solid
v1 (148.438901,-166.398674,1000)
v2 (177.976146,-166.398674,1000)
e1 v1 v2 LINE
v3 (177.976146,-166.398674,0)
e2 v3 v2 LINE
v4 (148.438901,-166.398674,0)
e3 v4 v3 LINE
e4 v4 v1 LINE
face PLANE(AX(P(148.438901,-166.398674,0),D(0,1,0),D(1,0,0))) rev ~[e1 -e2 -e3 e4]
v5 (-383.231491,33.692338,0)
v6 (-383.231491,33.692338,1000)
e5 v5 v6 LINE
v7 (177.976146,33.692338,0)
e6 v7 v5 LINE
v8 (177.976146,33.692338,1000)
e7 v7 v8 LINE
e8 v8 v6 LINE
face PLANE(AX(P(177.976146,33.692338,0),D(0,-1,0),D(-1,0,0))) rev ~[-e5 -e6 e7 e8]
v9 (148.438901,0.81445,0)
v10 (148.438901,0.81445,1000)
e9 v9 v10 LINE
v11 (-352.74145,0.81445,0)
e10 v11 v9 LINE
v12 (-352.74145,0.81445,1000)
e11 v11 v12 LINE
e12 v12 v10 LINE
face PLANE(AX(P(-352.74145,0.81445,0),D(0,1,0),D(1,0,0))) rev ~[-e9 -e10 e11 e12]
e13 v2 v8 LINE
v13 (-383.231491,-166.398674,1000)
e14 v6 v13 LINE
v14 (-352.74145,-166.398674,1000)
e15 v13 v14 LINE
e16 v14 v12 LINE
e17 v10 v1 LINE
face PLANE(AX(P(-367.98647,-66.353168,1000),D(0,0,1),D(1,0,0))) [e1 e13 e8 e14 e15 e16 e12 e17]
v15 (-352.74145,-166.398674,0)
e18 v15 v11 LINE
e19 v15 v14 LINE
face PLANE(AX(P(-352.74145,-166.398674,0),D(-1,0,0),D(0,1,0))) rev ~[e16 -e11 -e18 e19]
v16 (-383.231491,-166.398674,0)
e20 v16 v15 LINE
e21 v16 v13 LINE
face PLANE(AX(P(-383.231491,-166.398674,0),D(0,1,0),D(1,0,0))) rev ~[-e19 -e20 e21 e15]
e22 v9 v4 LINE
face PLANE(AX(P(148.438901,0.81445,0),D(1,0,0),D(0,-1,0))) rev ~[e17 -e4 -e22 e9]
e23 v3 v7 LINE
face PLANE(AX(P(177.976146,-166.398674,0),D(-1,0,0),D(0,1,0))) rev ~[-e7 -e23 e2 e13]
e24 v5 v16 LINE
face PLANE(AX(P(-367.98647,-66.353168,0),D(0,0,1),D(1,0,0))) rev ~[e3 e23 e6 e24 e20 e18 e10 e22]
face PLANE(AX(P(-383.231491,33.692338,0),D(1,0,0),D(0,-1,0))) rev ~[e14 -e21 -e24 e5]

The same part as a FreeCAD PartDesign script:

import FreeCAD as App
import Part
import Sketcher
from FreeCAD import Vector
Q = App.Units.Quantity

doc = App.newDocument("Part")
params = doc.addObject("Spreadsheet::Sheet", "Params")
for row, (alias, value) in enumerate([
    ("pad1_length", "1000 mm"),
], start=1):
    params.set(f"A{row}", alias)
    params.set(f"B{row}", "=" + value)
    params.setAlias(f"B{row}", alias)

body = doc.addObject("PartDesign::Body", "Body")

# Sketch on XY plane
sketch1 = doc.addObject("Sketcher::SketchObject", "Sketch")
body.addObject(sketch1)
sketch1.AttachmentSupport = (doc.XY_Plane, [""])
sketch1.MapMode = "FlatFace"
sketch1.addGeometry([
    Part.LineSegment(Vector(-383, 34, 0), Vector(-383, -166, 0)),  # 0
    Part.LineSegment(Vector(-383, -166, 0), Vector(-353, -166, 0)),  # 1
    Part.LineSegment(Vector(-353, -166, 0), Vector(-353, 1, 0)),  # 2
    Part.LineSegment(Vector(-353, 1, 0), Vector(148, 1, 0)),  # 3
    Part.LineSegment(Vector(148, 1, 0), Vector(148, -166, 0)),  # 4
    Part.LineSegment(Vector(148, -166, 0), Vector(178, -166, 0)),  # 5
    Part.LineSegment(Vector(178, -166, 0), Vector(178, 34, 0)),  # 6
    Part.LineSegment(Vector(178, 34, 0), Vector(-383, 34, 0)),  # 7
], False)
sketch1.addConstraint([
    Sketcher.Constraint("Coincident", 0, 2, 1, 1),
    Sketcher.Constraint("Coincident", 1, 2, 2, 1),
    Sketcher.Constraint("Coincident", 2, 2, 3, 1),
    Sketcher.Constraint("Coincident", 3, 2, 4, 1),
    Sketcher.Constraint("Coincident", 4, 2, 5, 1),
    Sketcher.Constraint("Coincident", 5, 2, 6, 1),
    Sketcher.Constraint("Coincident", 6, 2, 7, 1),
    Sketcher.Constraint("Coincident", 7, 2, 0, 1),
    Sketcher.Constraint("Vertical", 0),
    Sketcher.Constraint("Horizontal", 1),
    Sketcher.Constraint("Vertical", 2),
    Sketcher.Constraint("Horizontal", 3),
    Sketcher.Constraint("Vertical", 4),
    Sketcher.Constraint("Horizontal", 5),
    Sketcher.Constraint("Vertical", 6),
    Sketcher.Constraint("Horizontal", 7),
    Sketcher.Constraint("Horizontal", 1, 2, 4, 2),
    Sketcher.Constraint("DistanceX", 1, 1, 1, 2, Q("30.490041 mm")),
    Sketcher.Constraint("DistanceX", 3, 1, 3, 2, Q("501.180351 mm")),
    Sketcher.Constraint("DistanceY", 0, 2, 0, 1, Q("200.091012 mm")),
    Sketcher.Constraint("DistanceX", -1, 1, 3, 2, Q("148.438901 mm")),
    Sketcher.Constraint("DistanceX", 5, 1, 5, 2, Q("29.537246 mm")),
    Sketcher.Constraint("DistanceY", 2, 1, 2, 2, Q("167.213124 mm")),
    Sketcher.Constraint("DistanceY", -1, 1, 2, 2, Q("0.81445 mm")),
])
pad1 = doc.addObject("PartDesign::Pad", "Pad")
body.addObject(pad1)
pad1.Profile = sketch1
pad1.setExpression("Length", "Params.pad1_length")

doc.recompute()
